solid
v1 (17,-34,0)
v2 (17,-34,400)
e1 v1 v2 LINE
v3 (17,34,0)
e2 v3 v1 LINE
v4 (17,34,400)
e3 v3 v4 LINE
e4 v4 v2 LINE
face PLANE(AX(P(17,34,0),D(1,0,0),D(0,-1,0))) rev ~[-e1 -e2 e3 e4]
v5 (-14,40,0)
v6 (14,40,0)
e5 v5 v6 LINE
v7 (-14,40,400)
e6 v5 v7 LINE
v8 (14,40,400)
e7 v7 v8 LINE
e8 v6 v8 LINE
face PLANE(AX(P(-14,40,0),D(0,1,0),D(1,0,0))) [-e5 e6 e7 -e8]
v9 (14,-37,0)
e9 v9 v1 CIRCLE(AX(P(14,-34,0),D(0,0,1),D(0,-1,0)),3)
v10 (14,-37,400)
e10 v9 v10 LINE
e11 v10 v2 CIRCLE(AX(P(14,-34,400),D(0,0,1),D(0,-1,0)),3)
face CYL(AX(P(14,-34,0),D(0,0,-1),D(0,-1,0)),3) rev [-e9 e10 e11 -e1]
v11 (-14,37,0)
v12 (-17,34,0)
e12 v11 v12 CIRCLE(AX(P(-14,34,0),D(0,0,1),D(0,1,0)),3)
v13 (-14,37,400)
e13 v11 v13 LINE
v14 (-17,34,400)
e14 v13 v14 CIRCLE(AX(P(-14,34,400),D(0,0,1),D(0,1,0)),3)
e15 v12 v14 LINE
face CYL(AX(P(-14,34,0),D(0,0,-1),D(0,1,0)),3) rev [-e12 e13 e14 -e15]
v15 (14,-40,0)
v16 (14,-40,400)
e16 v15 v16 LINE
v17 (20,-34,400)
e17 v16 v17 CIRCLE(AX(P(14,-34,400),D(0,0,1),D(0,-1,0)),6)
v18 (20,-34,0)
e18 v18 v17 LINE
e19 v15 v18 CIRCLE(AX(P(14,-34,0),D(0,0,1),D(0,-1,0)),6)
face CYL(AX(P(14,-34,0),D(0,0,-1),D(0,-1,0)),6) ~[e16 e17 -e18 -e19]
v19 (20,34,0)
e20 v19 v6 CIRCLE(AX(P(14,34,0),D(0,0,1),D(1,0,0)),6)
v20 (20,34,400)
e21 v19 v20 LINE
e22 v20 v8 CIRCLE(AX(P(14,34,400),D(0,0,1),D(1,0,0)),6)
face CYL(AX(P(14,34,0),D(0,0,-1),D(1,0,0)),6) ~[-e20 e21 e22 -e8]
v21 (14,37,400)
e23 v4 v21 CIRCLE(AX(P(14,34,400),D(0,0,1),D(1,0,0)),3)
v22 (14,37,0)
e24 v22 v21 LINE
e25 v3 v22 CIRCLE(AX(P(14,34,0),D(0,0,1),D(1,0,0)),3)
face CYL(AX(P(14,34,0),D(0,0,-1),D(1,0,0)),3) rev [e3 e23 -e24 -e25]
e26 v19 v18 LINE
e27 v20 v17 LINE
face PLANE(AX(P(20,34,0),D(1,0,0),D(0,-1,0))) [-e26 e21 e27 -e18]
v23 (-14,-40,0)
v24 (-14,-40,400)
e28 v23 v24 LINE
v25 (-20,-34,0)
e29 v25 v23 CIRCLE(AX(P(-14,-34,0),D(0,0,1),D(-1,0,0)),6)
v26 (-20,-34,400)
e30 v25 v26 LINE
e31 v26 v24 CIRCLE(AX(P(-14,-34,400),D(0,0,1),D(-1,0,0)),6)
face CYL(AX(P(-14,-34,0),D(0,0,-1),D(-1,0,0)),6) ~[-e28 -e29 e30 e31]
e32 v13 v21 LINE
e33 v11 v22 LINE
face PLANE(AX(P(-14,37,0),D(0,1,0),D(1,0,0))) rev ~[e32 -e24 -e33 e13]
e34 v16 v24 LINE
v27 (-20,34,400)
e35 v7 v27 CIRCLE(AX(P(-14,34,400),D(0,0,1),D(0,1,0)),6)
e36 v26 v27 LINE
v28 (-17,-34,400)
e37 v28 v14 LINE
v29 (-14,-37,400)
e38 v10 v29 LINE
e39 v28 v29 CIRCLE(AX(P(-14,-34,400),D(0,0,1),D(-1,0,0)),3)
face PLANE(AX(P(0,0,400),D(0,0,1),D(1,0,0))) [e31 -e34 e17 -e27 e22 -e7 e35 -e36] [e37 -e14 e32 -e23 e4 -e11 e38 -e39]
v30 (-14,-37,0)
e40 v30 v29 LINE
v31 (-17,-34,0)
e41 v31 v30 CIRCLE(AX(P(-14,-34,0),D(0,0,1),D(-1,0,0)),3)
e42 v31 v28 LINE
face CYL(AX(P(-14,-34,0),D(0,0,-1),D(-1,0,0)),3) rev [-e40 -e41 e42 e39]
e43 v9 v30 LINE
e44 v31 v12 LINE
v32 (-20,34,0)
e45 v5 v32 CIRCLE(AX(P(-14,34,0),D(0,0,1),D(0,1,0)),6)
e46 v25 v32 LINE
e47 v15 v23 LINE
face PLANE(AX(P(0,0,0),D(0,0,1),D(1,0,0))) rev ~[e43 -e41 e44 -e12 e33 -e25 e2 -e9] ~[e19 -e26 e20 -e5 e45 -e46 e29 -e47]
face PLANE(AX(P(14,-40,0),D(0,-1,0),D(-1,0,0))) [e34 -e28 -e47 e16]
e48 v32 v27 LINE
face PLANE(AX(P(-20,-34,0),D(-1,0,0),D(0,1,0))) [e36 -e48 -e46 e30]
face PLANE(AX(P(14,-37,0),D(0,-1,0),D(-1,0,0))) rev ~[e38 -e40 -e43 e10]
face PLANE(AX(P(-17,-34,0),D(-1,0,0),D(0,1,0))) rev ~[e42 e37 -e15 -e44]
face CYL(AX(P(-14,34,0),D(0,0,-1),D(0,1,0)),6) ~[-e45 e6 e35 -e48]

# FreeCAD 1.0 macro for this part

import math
import FreeCAD as App
import Part
import Sketcher

V = App.Vector

doc = App.newDocument("Part")
body = doc.addObject("PartDesign::Body", "Body")

# Sketch on XY plane
sketch1 = body.newObject("Sketcher::SketchObject", "Sketch")
sketch1.AttachmentSupport = (doc.getObject("XY_Plane"), [""])
sketch1.MapMode = "FlatFace"
sketch1.addGeometry([
    Part.LineSegment(V(-20, 34, 0), V(-20, -34, 0)),  # 0
    Part.ArcOfCircle(Part.Circle(V(-14, -34, 0), V(0, 0, 1), 6), math.radians(180), math.radians(270)),  # 1
    Part.LineSegment(V(-14, -40, 0), V(14, -40, 0)),  # 2
    Part.ArcOfCircle(Part.Circle(V(14, -34, 0), V(0, 0, 1), 6), math.radians(-90), math.radians(0)),  # 3
    Part.LineSegment(V(20, -34, 0), V(20, 34, 0)),  # 4
    Part.ArcOfCircle(Part.Circle(V(14, 34, 0), V(0, 0, 1), 6), math.radians(0), math.radians(90)),  # 5
    Part.LineSegment(V(14, 40, 0), V(-14, 40, 0)),  # 6
    Part.ArcOfCircle(Part.Circle(V(-14, 34, 0), V(0, 0, 1), 6), math.radians(90), math.radians(180)),  # 7
    Part.ArcOfCircle(Part.Circle(V(-14, 34, 0), V(0, 0, 1), 3), math.radians(90), math.radians(180)),  # 8
    Part.LineSegment(V(-14, 37, 0), V(14, 37, 0)),  # 9
    Part.ArcOfCircle(Part.Circle(V(14, 34, 0), V(0, 0, 1), 3), math.radians(0), math.radians(90)),  # 10
    Part.LineSegment(V(17, 34, 0), V(17, -34, 0)),  # 11
    Part.ArcOfCircle(Part.Circle(V(14, -34, 0), V(0, 0, 1), 3), math.radians(-90), math.radians(0)),  # 12
    Part.LineSegment(V(14, -37, 0), V(-14, -37, 0)),  # 13
    Part.ArcOfCircle(Part.Circle(V(-14, -34, 0), V(0, 0, 1), 3), math.radians(180), math.radians(270)),  # 14
    Part.LineSegment(V(-17, -34, 0), V(-17, 34, 0)),  # 15
], False)
sketch1.addConstraint([
    Sketcher.Constraint("Tangent", 0, 2, 1, 1),
    Sketcher.Constraint("Tangent", 1, 2, 2, 1),
    Sketcher.Constraint("Tangent", 2, 2, 3, 1),
    Sketcher.Constraint("Tangent", 3, 2, 4, 1),
    Sketcher.Constraint("Tangent", 4, 2, 5, 1),
    Sketcher.Constraint("Tangent", 5, 2, 6, 1),
    Sketcher.Constraint("Tangent", 6, 2, 7, 1),
    Sketcher.Constraint("Tangent", 7, 2, 0, 1),
    Sketcher.Constraint("Tangent", 8, 1, 9, 1),
    Sketcher.Constraint("Tangent", 9, 2, 10, 2),
    Sketcher.Constraint("Tangent", 10, 1, 11, 1),
    Sketcher.Constraint("Tangent", 11, 2, 12, 2),
    Sketcher.Constraint("Tangent", 12, 1, 13, 1),
    Sketcher.Constraint("Tangent", 13, 2, 14, 2),
    Sketcher.Constraint("Tangent", 14, 1, 15, 1),
    Sketcher.Constraint("Tangent", 15, 2, 8, 2),
    Sketcher.Constraint("Vertical", 0),
    Sketcher.Constraint("Horizontal", 2),
    Sketcher.Constraint("Vertical", 4),
    Sketcher.Constraint("Horizontal", 6),
    Sketcher.Constraint("Horizontal", 9),
    Sketcher.Constraint("Vertical", 11),
    Sketcher.Constraint("Horizontal", 13),
    Sketcher.Constraint("Vertical", 15),
    Sketcher.Constraint("Coincident", 8, 3, 7, 3),
    Sketcher.Constraint("Coincident", 10, 3, 5, 3),
    Sketcher.Constraint("Coincident", 12, 3, 3, 3),
    Sketcher.Constraint("Equal", 1, 3),
    Sketcher.Constraint("Equal", 3, 5),
    Sketcher.Constraint("Equal", 5, 7),
    Sketcher.Constraint("Equal", 12, 14),
    Sketcher.Constraint("Symmetric", 1, 3, 5, 3, -1, 1),
    Sketcher.Constraint("Radius", 1, 6.0),
    Sketcher.Constraint("Radius", 8, 3.0),
    Sketcher.Constraint("DistanceX", 0, 2, -1, 1, 20.0),
    Sketcher.Constraint("DistanceY", 1, 2, -1, 1, 40.0),
])
pad1 = body.newObject("PartDesign::Pad", "Pad")
pad1.Profile = sketch1
pad1.Length = 400

doc.recompute()
